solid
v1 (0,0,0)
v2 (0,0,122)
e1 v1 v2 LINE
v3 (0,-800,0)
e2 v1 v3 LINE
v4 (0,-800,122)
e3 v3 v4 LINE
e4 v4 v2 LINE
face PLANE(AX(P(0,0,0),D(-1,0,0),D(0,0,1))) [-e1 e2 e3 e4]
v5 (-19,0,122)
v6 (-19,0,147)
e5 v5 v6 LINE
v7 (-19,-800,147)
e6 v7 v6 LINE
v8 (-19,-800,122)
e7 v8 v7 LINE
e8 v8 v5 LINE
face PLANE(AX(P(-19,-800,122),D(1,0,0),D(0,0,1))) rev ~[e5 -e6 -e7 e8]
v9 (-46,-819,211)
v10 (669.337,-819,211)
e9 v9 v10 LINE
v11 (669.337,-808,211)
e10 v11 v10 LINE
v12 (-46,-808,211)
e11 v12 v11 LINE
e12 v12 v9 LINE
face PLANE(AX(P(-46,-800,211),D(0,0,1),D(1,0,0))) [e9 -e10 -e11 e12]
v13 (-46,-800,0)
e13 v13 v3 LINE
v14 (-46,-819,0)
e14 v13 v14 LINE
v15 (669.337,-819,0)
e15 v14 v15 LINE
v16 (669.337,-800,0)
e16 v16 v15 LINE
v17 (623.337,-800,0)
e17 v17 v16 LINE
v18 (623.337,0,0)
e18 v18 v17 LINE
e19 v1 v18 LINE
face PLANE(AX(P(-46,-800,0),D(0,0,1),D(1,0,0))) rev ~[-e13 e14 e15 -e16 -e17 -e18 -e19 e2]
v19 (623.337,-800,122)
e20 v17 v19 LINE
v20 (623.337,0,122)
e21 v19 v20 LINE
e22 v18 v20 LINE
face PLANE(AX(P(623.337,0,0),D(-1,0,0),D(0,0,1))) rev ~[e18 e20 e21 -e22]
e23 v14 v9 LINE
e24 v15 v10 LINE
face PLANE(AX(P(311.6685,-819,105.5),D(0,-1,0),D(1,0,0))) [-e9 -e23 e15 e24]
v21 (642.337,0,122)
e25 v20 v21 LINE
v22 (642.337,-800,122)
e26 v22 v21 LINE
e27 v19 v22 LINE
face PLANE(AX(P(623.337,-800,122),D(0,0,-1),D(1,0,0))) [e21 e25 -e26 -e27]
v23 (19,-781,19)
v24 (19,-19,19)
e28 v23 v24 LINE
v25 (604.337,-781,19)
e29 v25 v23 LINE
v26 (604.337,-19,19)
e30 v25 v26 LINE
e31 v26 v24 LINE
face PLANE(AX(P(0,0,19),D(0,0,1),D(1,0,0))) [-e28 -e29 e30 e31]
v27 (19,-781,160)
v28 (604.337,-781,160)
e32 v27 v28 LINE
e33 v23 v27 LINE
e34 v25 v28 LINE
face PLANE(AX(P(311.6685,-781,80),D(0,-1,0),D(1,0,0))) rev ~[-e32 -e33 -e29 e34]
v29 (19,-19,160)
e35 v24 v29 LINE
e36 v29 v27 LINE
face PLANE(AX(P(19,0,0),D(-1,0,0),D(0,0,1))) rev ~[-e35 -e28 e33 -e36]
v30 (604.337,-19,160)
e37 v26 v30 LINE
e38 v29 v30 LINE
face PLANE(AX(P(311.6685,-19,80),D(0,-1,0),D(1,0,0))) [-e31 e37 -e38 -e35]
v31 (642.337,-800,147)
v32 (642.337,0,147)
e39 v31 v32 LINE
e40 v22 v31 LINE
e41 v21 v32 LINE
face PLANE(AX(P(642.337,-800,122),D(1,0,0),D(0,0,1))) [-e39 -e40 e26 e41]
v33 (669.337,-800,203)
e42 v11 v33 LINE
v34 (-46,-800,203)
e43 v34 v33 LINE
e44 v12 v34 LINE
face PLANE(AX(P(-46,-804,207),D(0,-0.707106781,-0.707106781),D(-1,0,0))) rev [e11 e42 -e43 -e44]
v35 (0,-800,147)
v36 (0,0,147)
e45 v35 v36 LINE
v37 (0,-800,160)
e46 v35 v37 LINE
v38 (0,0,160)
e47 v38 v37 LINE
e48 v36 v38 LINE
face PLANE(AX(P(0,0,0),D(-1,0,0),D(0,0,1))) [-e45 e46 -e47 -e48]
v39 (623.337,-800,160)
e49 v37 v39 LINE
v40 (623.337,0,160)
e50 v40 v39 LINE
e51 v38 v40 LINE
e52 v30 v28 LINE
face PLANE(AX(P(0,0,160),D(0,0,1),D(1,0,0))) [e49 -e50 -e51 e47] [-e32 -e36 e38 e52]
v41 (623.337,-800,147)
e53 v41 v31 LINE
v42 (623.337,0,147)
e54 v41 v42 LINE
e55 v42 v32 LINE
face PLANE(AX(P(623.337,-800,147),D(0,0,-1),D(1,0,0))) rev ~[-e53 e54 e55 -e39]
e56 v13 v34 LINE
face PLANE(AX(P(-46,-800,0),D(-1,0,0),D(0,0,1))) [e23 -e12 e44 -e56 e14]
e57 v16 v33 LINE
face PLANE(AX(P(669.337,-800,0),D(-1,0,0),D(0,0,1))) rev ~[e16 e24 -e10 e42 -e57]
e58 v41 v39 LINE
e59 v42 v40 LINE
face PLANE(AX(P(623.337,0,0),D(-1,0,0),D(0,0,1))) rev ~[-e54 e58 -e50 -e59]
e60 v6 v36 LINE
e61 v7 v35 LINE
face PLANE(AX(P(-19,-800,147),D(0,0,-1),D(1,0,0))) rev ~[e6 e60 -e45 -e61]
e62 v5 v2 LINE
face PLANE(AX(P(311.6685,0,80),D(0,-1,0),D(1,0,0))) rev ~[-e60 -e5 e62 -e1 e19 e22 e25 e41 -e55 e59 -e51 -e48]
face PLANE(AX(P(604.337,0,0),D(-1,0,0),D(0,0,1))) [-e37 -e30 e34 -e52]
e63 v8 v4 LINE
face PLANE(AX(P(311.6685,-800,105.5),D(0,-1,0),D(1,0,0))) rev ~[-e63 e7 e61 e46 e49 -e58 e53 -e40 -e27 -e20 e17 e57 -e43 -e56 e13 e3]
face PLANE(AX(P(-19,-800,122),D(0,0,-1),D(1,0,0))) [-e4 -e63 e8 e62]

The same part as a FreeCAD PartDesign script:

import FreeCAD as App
import Part
import Sketcher
from FreeCAD import Vector


def edges_at(feature, points):
    """Names of the edges that pass closest to the given points."""
    edges = feature.Shape.Edges
    near = lambda p: min(range(len(edges)), key=lambda i: edges[i].distToShape(Part.Vertex(*p))[0])
    return sorted({f"Edge{near(p) + 1}" for p in points})


def faces_at(feature, points):
    """Names of the faces that lie closest to the given points."""
    faces = feature.Shape.Faces
    near = lambda p: min(range(len(faces)), key=lambda i: faces[i].distToShape(Part.Vertex(*p))[0])
    return sorted({f"Face{near(p) + 1}" for p in points})

doc = App.newDocument("Part")
body = doc.addObject("PartDesign::Body", "Body")

# Sketch on XZ plane
sketch1 = body.newObject("Sketcher::SketchObject", "Sketch")
sketch1.AttachmentSupport = (doc.getObject("XZ_Plane"), [""])
sketch1.MapMode = "FlatFace"
sketch1.addGeometry([
    Part.LineSegment(Vector(0, 160, 0), Vector(0, 0, 0)),
    Part.LineSegment(Vector(0, 0, 0), Vector(623, 0, 0)),
    Part.LineSegment(Vector(623, 0, 0), Vector(623, 160, 0)),
    Part.LineSegment(Vector(623, 160, 0), Vector(0, 160, 0)),
], False)
sketch1.addConstraint([
    Sketcher.Constraint("Coincident", 0, 2, 1, 1),
    Sketcher.Constraint("Coincident", 1, 2, 2, 1),
    Sketcher.Constraint("Coincident", 2, 2, 3, 1),
    Sketcher.Constraint("Coincident", 3, 2, 0, 1),
    Sketcher.Constraint("Vertical", 0),
    Sketcher.Constraint("Horizontal", 1),
    Sketcher.Constraint("Vertical", 2),
    Sketcher.Constraint("Horizontal", 3),
    Sketcher.Constraint("Coincident", 0, 2, -1, 1),
    Sketcher.Constraint("DistanceY", 0, 2, 0, 1, 160.0),
    Sketcher.Constraint("DistanceX", 1, 1, 1, 2, 623.337),
])
pad1 = body.newObject("PartDesign::Pad", "Pad")
pad1.Profile = sketch1
pad1.Length = 800
doc.recompute()

thickness = body.newObject("PartDesign::Thickness", "Thickness")
thickness.Base = (pad1, faces_at(pad1, [(311.668, -400, 160)]))
thickness.Value = 19
thickness.Reversed = True
thickness.Join = "Arc"
body2 = doc.addObject("PartDesign::Body", "Body001")
body2.AllowCompound = True

# Sketch on XZ plane
sketch2 = body2.newObject("Sketcher::SketchObject", "Sketch001")
sketch2.AttachmentSupport = (doc.getObject("XZ_Plane001"), [""])
sketch2.MapMode = "FlatFace"
sketch2.AttachmentOffset = App.Placement(Vector(0, 0, 800), App.Rotation())
sketch2.addGeometry([
    Part.LineSegment(Vector(-19, 147, 0), Vector(-19, 122, 0)),  # 0
    Part.LineSegment(Vector(-19, 122, 0), Vector(0, 122, 0)),  # 1
    Part.LineSegment(Vector(0, 122, 0), Vector(0, 147, 0)),  # 2
    Part.LineSegment(Vector(0, 147, 0), Vector(-19, 147, 0)),  # 3
    Part.LineSegment(Vector(623, 147, 0), Vector(623, 122, 0)),  # 4
    Part.LineSegment(Vector(623, 122, 0), Vector(642, 122, 0)),  # 5
    Part.LineSegment(Vector(642, 122, 0), Vector(642, 147, 0)),  # 6
    Part.LineSegment(Vector(642, 147, 0), Vector(623, 147, 0)),  # 7
], False)
sketch2.addConstraint([
    Sketcher.Constraint("Coincident", 0, 2, 1, 1),
    Sketcher.Constraint("Coincident", 1, 2, 2, 1),
    Sketcher.Constraint("Coincident", 2, 2, 3, 1),
    Sketcher.Constraint("Coincident", 3, 2, 0, 1),
    Sketcher.Constraint("Coincident", 4, 2, 5, 1),
    Sketcher.Constraint("Coincident", 5, 2, 6, 1),
    Sketcher.Constraint("Coincident", 6, 2, 7, 1),
    Sketcher.Constraint("Coincident", 7, 2, 4, 1),
    Sketcher.Constraint("Vertical", 0),
    Sketcher.Constraint("Horizontal", 1),
    Sketcher.Constraint("Vertical", 2),
    Sketcher.Constraint("Horizontal", 3),
    Sketcher.Constraint("Vertical", 4),
    Sketcher.Constraint("Horizontal", 5),
    Sketcher.Constraint("Vertical", 6),
    Sketcher.Constraint("Horizontal", 7),
    Sketcher.Constraint("PointOnObject", 1, 2, -2),
    Sketcher.Constraint("Horizontal", 1, 2, 4, 2),
    Sketcher.Constraint("Horizontal", 3, 2, 6, 2),
    Sketcher.Constraint("Equal", 3, 5),
    Sketcher.Constraint("DistanceX", 1, 1, 1, 2, 19.0),
    Sketcher.Constraint("DistanceY", 0, 2, 0, 1, 25.0),
    Sketcher.Constraint("DistanceY", -1, 1, 0, 2, 122.0),
    Sketcher.Constraint("DistanceX", -1, 1, 4, 2, 623.337),
])
pad2 = body2.newObject("PartDesign::Pad", "Pad001")
pad2.Profile = sketch2
pad2.Length = 800
pad2.Reversed = True
doc.recompute()

boolean = body.newObject("PartDesign::Boolean", "Boolean")
boolean.Type = "Fuse"
boolean.addObjects([body2])

# Sketch on XZ plane
sketch3 = body.newObject("Sketcher::SketchObject", "Sketch002")
sketch3.AttachmentSupport = (doc.getObject("XZ_Plane"), [""])
sketch3.MapMode = "FlatFace"
sketch3.AttachmentOffset = App.Placement(Vector(0, 0, 800), App.Rotation())
sketch3.addGeometry([
    Part.LineSegment(Vector(-46, 211, 0), Vector(-46, 0, 0)),
    Part.LineSegment(Vector(-46, 0, 0), Vector(669, 0, 0)),
    Part.LineSegment(Vector(669, 0, 0), Vector(669, 211, 0)),
    Part.LineSegment(Vector(669, 211, 0), Vector(-46, 211, 0)),
], False)
sketch3.addConstraint([
    Sketcher.Constraint("Coincident", 0, 2, 1, 1),
    Sketcher.Constraint("Coincident", 1, 2, 2, 1),
    Sketcher.Constraint("Coincident", 2, 2, 3, 1),
    Sketcher.Constraint("Coincident", 3, 2, 0, 1),
    Sketcher.Constraint("Vertical", 0),
    Sketcher.Constraint("Horizontal", 1),
    Sketcher.Constraint("Vertical", 2),
    Sketcher.Constraint("Horizontal", 3),
    Sketcher.Constraint("PointOnObject", 0, 2, -1),
    Sketcher.Constraint("DistanceY", 0, 2, 0, 1, 211.0),
    Sketcher.Constraint("DistanceX", 0, 2, -1, 1, 46.0),
    Sketcher.Constraint("DistanceX", 1, 1, 1, 2, 715.337),
])
pad3 = body.newObject("PartDesign::Pad", "Pad002")
pad3.Profile = sketch3
pad3.Length = 19
doc.recompute()

chamfer = body.newObject("PartDesign::Chamfer", "Chamfer")
chamfer.Base = (pad3, edges_at(pad3, [(311.668, -800, 211)]))
chamfer.Size = 8

doc.recompute()
